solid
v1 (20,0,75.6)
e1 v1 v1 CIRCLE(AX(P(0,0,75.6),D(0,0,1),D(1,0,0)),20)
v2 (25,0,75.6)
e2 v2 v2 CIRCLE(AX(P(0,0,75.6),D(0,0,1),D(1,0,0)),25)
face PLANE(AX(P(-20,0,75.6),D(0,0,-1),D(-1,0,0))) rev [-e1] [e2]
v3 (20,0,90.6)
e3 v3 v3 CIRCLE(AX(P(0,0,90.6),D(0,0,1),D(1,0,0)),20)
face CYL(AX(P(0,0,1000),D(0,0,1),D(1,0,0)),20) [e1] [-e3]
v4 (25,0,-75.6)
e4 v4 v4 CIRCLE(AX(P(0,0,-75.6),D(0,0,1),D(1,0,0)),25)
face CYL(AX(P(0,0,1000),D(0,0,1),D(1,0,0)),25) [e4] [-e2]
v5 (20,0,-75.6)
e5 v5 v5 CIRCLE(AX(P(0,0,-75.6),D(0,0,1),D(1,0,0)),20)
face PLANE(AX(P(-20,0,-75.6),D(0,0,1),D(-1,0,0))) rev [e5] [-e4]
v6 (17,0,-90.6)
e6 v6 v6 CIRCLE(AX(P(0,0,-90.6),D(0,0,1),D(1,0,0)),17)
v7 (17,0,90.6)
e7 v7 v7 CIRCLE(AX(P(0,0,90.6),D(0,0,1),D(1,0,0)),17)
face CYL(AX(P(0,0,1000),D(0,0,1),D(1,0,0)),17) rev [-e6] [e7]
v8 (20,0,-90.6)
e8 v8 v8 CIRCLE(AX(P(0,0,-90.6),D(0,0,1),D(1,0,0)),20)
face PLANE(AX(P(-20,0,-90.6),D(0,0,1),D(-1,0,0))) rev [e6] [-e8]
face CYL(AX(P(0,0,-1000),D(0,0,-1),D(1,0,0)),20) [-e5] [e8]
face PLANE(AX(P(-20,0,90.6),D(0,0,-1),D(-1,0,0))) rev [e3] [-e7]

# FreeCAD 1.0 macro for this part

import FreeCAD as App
import Part
import Sketcher
Q = App.Units.Quantity

doc = App.newDocument("Part")
body = doc.addObject("PartDesign::Body", "Body")

sketch1 = body.newObject("Sketcher::SketchObject", "Sketch")
sketch1.AttachmentSupport = (doc.getObject("XZ_Plane"), [""])
sketch1.MapMode = "FlatFace"
sketch1.addGeometry([
    Part.LineSegment(App.Vector(-17, 0, 0), App.Vector(-25, 0, 0)),
    Part.LineSegment(App.Vector(-25, 0, 0), App.Vector(-25, 75.6, 0)),
    Part.LineSegment(App.Vector(-25, 75.6, 0), App.Vector(-20, 75.6, 0)),
    Part.LineSegment(App.Vector(-20, 75.6, 0), App.Vector(-20, 90.6, 0)),
    Part.LineSegment(App.Vector(-20, 90.6, 0), App.Vector(-17, 90.6, 0)),
    Part.LineSegment(App.Vector(-17, 90.6, 0), App.Vector(-17, 0, 0)),
], False)
sketch1.addConstraint([
    Sketcher.Constraint("Coincident", 0, 2, 1, 1),
    Sketcher.Constraint("Coincident", 1, 2, 2, 1),
    Sketcher.Constraint("Coincident", 2, 2, 3, 1),
    Sketcher.Constraint("Coincident", 3, 2, 4, 1),
    Sketcher.Constraint("Coincident", 4, 2, 5, 1),
    Sketcher.Constraint("Coincident", 5, 2, 0, 1),
    Sketcher.Constraint("Horizontal", 0),
    Sketcher.Constraint("Vertical", 1),
    Sketcher.Constraint("Horizontal", 2),
    Sketcher.Constraint("Vertical", 3),
    Sketcher.Constraint("Horizontal", 4),
    Sketcher.Constraint("Vertical", 5),
    Sketcher.Constraint("PointOnObject", 0, 2, -1),
    Sketcher.Constraint("DistanceX", 0, 2, 0, 1, Q("8 mm")),
    Sketcher.Constraint("DistanceX", 2, 1, 2, 2, Q("5 mm")),
    Sketcher.Constraint("DistanceY", 3, 1, 3, 2, Q("15 mm")),
    Sketcher.Constraint("DistanceY", 1, 1, 1, 2, Q("75.6 mm")),
    Sketcher.Constraint("DistanceX", 0, 2, -1, 1, Q("25 mm")),
])
revolution = body.newObject("PartDesign::Revolution", "Revolution")
revolution.Profile = sketch1
revolution.ReferenceAxis = (sketch1, ["V_Axis"])
revolution.Angle = 360
doc.recompute()

mirrored = body.newObject("PartDesign::Mirrored", "Mirrored")
mirrored.Originals = [revolution]
mirrored.MirrorPlane = (doc.getObject("XY_Plane"), [""])
body.Tip = mirrored

doc.recompute()
